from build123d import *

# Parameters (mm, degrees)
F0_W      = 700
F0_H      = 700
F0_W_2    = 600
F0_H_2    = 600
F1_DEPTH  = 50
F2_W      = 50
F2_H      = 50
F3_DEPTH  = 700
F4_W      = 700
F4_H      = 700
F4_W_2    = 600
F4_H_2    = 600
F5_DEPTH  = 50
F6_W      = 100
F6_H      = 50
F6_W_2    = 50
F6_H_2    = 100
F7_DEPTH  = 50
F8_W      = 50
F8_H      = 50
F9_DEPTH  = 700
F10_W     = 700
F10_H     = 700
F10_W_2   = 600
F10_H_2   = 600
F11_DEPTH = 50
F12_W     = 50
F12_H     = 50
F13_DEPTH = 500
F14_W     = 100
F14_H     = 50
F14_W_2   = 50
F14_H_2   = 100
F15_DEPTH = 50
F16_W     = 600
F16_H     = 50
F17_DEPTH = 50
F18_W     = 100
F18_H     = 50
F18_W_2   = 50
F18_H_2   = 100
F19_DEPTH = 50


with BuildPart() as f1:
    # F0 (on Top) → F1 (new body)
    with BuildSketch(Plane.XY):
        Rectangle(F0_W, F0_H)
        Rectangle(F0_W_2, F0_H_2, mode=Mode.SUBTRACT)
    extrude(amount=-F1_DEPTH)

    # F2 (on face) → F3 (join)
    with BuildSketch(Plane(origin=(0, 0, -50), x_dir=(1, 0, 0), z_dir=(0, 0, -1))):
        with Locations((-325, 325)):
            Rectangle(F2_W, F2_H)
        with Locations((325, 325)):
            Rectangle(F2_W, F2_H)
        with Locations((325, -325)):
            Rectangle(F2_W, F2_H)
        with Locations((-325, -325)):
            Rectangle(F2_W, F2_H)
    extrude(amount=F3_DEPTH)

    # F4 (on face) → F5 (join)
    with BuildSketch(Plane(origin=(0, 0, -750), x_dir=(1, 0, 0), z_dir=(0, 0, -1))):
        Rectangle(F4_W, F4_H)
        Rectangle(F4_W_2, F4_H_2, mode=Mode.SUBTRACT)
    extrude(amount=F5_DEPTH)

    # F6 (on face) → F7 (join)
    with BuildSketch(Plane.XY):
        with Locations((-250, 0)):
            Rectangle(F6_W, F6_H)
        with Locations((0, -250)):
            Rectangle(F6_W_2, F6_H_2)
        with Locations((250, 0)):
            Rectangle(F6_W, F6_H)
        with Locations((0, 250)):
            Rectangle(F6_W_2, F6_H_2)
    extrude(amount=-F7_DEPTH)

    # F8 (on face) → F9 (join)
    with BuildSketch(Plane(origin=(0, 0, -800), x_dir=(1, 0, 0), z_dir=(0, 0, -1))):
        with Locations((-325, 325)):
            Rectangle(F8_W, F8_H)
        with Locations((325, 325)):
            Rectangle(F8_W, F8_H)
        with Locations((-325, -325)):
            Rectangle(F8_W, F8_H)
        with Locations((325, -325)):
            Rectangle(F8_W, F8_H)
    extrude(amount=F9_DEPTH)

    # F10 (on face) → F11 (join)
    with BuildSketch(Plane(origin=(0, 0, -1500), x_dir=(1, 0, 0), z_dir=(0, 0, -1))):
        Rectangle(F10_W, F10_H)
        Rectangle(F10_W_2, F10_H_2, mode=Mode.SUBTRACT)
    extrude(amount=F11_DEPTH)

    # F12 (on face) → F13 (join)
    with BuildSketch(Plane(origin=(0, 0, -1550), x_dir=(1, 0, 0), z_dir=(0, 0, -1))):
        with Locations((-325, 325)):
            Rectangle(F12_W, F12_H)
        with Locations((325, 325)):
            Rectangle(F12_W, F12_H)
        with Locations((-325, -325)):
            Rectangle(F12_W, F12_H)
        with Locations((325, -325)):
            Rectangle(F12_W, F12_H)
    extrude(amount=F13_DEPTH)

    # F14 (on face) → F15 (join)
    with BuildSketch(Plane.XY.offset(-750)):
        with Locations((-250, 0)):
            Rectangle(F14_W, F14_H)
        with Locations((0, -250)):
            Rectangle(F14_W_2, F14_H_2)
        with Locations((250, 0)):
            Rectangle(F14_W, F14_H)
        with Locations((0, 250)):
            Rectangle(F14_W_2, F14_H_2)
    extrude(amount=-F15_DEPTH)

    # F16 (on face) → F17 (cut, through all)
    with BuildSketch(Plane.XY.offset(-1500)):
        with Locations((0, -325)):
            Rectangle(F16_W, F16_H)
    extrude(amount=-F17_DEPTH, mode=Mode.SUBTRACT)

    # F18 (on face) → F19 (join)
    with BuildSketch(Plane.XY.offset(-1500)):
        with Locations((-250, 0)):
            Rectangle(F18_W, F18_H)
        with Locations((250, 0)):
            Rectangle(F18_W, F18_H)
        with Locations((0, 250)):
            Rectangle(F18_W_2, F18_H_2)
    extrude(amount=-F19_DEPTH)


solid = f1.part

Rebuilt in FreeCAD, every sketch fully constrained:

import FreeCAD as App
import Part
import Sketcher

doc = App.newDocument("Part")
params = doc.addObject("Spreadsheet::Sheet", "Params")
for row, (alias, value) in enumerate([
    ("sketch1_width", "700 mm"),
    ("sketch1_width2", "600 mm"),
    ("pad1_length", "50 mm"),
    ("sketch2_width", "50 mm"),
    ("pad2_length", "700 mm"),
    ("sketch3_width", "700 mm"),
    ("sketch3_width2", "600 mm"),
    ("pad3_length", "50 mm"),
    ("sketch4_width", "100 mm"),
    ("sketch4_width2", "50 mm"),
    ("pad4_length", "50 mm"),
    ("sketch5_width", "50 mm"),
    ("pad5_length", "700 mm"),
    ("sketch6_width", "700 mm"),
    ("sketch6_width2", "600 mm"),
    ("pad6_length", "50 mm"),
    ("sketch7_width", "50 mm"),
    ("pad7_length", "500 mm"),
    ("sketch8_width", "100 mm"),
    ("sketch8_width2", "50 mm"),
    ("pad8_length", "50 mm"),
    ("sketch9_width", "600 mm"),
    ("sketch9_height", "50 mm"),
    ("sketch10_width", "100 mm"),
    ("sketch10_width2", "50 mm"),
    ("pad9_length", "50 mm"),
], start=1):
    params.set(f"A{row}", alias)
    params.set(f"B{row}", "=" + value)
    params.setAlias(f"B{row}", alias)

body = doc.addObject("PartDesign::Body", "Body")

# Sketch on XY plane
sketch1 = body.newObject("Sketcher::SketchObject", "Sketch")
sketch1.AttachmentSupport = (doc.getObject("XY_Plane"), [""])
sketch1.MapMode = "FlatFace"
sketch1.addGeometry(Part.LineSegment(App.Vector(-350, 350, 0), App.Vector(-350, -350, 0)), False)
sketch1.addGeometry(Part.LineSegment(App.Vector(-350, -350, 0), App.Vector(350, -350, 0)), False)
sketch1.addGeometry(Part.LineSegment(App.Vector(350, -350, 0), App.Vector(350, 350, 0)), False)
sketch1.addGeometry(Part.LineSegment(App.Vector(350, 350, 0), App.Vector(-350, 350, 0)), False)
sketch1.addGeometry(Part.LineSegment(App.Vector(300, -300, 0), App.Vector(-300, -300, 0)), False)
sketch1.addGeometry(Part.LineSegment(App.Vector(-300, -300, 0), App.Vector(-300, 300, 0)), False)
sketch1.addGeometry(Part.LineSegment(App.Vector(-300, 300, 0), App.Vector(300, 300, 0)), False)
sketch1.addGeometry(Part.LineSegment(App.Vector(300, 300, 0), App.Vector(300, -300, 0)), False)
sketch1.addConstraint(Sketcher.Constraint("Coincident", 0, 2, 1, 1))
sketch1.addConstraint(Sketcher.Constraint("Coincident", 1, 2, 2, 1))
sketch1.addConstraint(Sketcher.Constraint("Coincident", 2, 2, 3, 1))
sketch1.addConstraint(Sketcher.Constraint("Coincident", 3, 2, 0, 1))
sketch1.addConstraint(Sketcher.Constraint("Coincident", 4, 2, 5, 1))
sketch1.addConstraint(Sketcher.Constraint("Coincident", 5, 2, 6, 1))
sketch1.addConstraint(Sketcher.Constraint("Coincident", 6, 2, 7, 1))
sketch1.addConstraint(Sketcher.Constraint("Coincident", 7, 2, 4, 1))
sketch1.addConstraint(Sketcher.Constraint("Vertical", 0))
sketch1.addConstraint(Sketcher.Constraint("Horizontal", 1))
sketch1.addConstraint(Sketcher.Constraint("Vertical", 2))
sketch1.addConstraint(Sketcher.Constraint("Horizontal", 3))
sketch1.addConstraint(Sketcher.Constraint("Horizontal", 4))
sketch1.addConstraint(Sketcher.Constraint("Vertical", 5))
sketch1.addConstraint(Sketcher.Constraint("Horizontal", 6))
sketch1.addConstraint(Sketcher.Constraint("Vertical", 7))
sketch1.addConstraint(Sketcher.Constraint("Symmetric", 0, 2, 2, 2, -1, 1))
sketch1.addConstraint(Sketcher.Constraint("Symmetric", 4, 2, 6, 2, -1, 1))
sketch1.addConstraint(Sketcher.Constraint("Equal", 3, 0))
sketch1.addConstraint(Sketcher.Constraint("Equal", 6, 5))
sketch1.addConstraint(Sketcher.Constraint("DistanceX", 1, 1, 1, 2, 700.0))
sketch1.addConstraint(Sketcher.Constraint("DistanceX", 4, 2, 4, 1, 600.0))
sketch1.setExpression("Constraints[20]", "Params.sketch1_width")
sketch1.setExpression("Constraints[21]", "Params.sketch1_width2")
pad1 = body.newObject("PartDesign::Pad", "Pad")
pad1.Profile = sketch1
pad1.setExpression("Length", "Params.pad1_length")
pad1.Reversed = True

# Sketch on XY plane
sketch2 = body.newObject("Sketcher::SketchObject", "Sketch001")
sketch2.AttachmentSupport = (doc.getObject("XY_Plane"), [""])
sketch2.MapMode = "FlatFace"
sketch2.AttachmentOffset = App.Placement(App.Vector(0, 0, -50), App.Rotation())
sketch2.addGeometry(Part.LineSegment(App.Vector(-350, -350, 0), App.Vector(-350, -300, 0)), False)
sketch2.addGeometry(Part.LineSegment(App.Vector(-350, -300, 0), App.Vector(-300, -300, 0)), False)
sketch2.addGeometry(Part.LineSegment(App.Vector(-300, -300, 0), App.Vector(-300, -350, 0)), False)
sketch2.addGeometry(Part.LineSegment(App.Vector(-300, -350, 0), App.Vector(-350, -350, 0)), False)
sketch2.addGeometry(Part.LineSegment(App.Vector(300, -350, 0), App.Vector(300, -300, 0)), False)
sketch2.addGeometry(Part.LineSegment(App.Vector(300, -300, 0), App.Vector(350, -300, 0)), False)
sketch2.addGeometry(Part.LineSegment(App.Vector(350, -300, 0), App.Vector(350, -350, 0)), False)
sketch2.addGeometry(Part.LineSegment(App.Vector(350, -350, 0), App.Vector(300, -350, 0)), False)
sketch2.addGeometry(Part.LineSegment(App.Vector(300, 300, 0), App.Vector(300, 350, 0)), False)
sketch2.addGeometry(Part.LineSegment(App.Vector(300, 350, 0), App.Vector(350, 350, 0)), False)
sketch2.addGeometry(Part.LineSegment(App.Vector(350, 350, 0), App.Vector(350, 300, 0)), False)
sketch2.addGeometry(Part.LineSegment(App.Vector(350, 300, 0), App.Vector(300, 300, 0)), False)
sketch2.addGeometry(Part.LineSegment(App.Vector(-350, 300, 0), App.Vector(-350, 350, 0)), False)
sketch2.addGeometry(Part.LineSegment(App.Vector(-350, 350, 0), App.Vector(-300, 350, 0)), False)
sketch2.addGeometry(Part.LineSegment(App.Vector(-300, 350, 0), App.Vector(-300, 300, 0)), False)
sketch2.addGeometry(Part.LineSegment(App.Vector(-300, 300, 0), App.Vector(-350, 300, 0)), False)
sketch2.addConstraint(Sketcher.Constraint("Coincident", 0, 2, 1, 1))
sketch2.addConstraint(Sketcher.Constraint("Coincident", 1, 2, 2, 1))
sketch2.addConstraint(Sketcher.Constraint("Coincident", 2, 2, 3, 1))
sketch2.addConstraint(Sketcher.Constraint("Coincident", 3, 2, 0, 1))
sketch2.addConstraint(Sketcher.Constraint("Coincident", 4, 2, 5, 1))
sketch2.addConstraint(Sketcher.Constraint("Coincident", 5, 2, 6, 1))
sketch2.addConstraint(Sketcher.Constraint("Coincident", 6, 2, 7, 1))
sketch2.addConstraint(Sketcher.Constraint("Coincident", 7, 2, 4, 1))
sketch2.addConstraint(Sketcher.Constraint("Coincident", 8, 2, 9, 1))
sketch2.addConstraint(Sketcher.Constraint("Coincident", 9, 2, 10, 1))
sketch2.addConstraint(Sketcher.Constraint("Coincident", 10, 2, 11, 1))
sketch2.addConstraint(Sketcher.Constraint("Coincident", 11, 2, 8, 1))
sketch2.addConstraint(Sketcher.Constraint("Coincident", 12, 2, 13, 1))
sketch2.addConstraint(Sketcher.Constraint("Coincident", 13, 2, 14, 1))
sketch2.addConstraint(Sketcher.Constraint("Coincident", 14, 2, 15, 1))
sketch2.addConstraint(Sketcher.Constraint("Coincident", 15, 2, 12, 1))
sketch2.addConstraint(Sketcher.Constraint("Vertical", 0))
sketch2.addConstraint(Sketcher.Constraint("Horizontal", 1))
sketch2.addConstraint(Sketcher.Constraint("Vertical", 2))
sketch2.addConstraint(Sketcher.Constraint("Horizontal", 3))
sketch2.addConstraint(Sketcher.Constraint("Vertical", 4))
sketch2.addConstraint(Sketcher.Constraint("Horizontal", 5))
sketch2.addConstraint(Sketcher.Constraint("Vertical", 6))
sketch2.addConstraint(Sketcher.Constraint("Horizontal", 7))
sketch2.addConstraint(Sketcher.Constraint("Vertical", 8))
sketch2.addConstraint(Sketcher.Constraint("Horizontal", 9))
sketch2.addConstraint(Sketcher.Constraint("Vertical", 10))
sketch2.addConstraint(Sketcher.Constraint("Horizontal", 11))
sketch2.addConstraint(Sketcher.Constraint("Vertical", 12))
sketch2.addConstraint(Sketcher.Constraint("Horizontal", 13))
sketch2.addConstraint(Sketcher.Constraint("Vertical", 14))
sketch2.addConstraint(Sketcher.Constraint("Horizontal", 15))
sketch2.addConstraint(Sketcher.Constraint("Symmetric", 2, 2, 8, 2, -1, 1))
sketch2.addConstraint(Sketcher.Constraint("Symmetric", 0, 2, 10, 2, -1, 1))
sketch2.addConstraint(Sketcher.Constraint("Symmetric", 6, 2, 12, 2, -1, 1))
sketch2.addConstraint(Sketcher.Constraint("Symmetric", 4, 2, 14, 2, -1, 1))
sketch2.addConstraint(Sketcher.Constraint("Symmetric", 1, 2, 4, 2, -2))
sketch2.addConstraint(Sketcher.Constraint("Symmetric", 3, 2, 6, 2, -2))
sketch2.addConstraint(Sketcher.Constraint("Equal", 15, 0))
sketch2.addConstraint(Sketcher.Constraint("DistanceX", 1, 1, 1, 2, 50.0))
sketch2.addConstraint(Sketcher.Constraint("DistanceX", 0, 2, -1, 1, 350.0))
sketch2.addConstraint(Sketcher.Constraint("DistanceY", 0, 2, -1, 1, 300.0))
sketch2.setExpression("Constraints[39]", "Params.sketch2_width")
pad2 = body.newObject("PartDesign::Pad", "Pad001")
pad2.Profile = sketch2
pad2.setExpression("Length", "Params.pad2_length")
pad2.Reversed = True

# Sketch on XY plane
sketch3 = body.newObject("Sketcher::SketchObject", "Sketch002")
sketch3.AttachmentSupport = (doc.getObject("XY_Plane"), [""])
sketch3.MapMode = "FlatFace"
sketch3.AttachmentOffset = App.Placement(App.Vector(0, 0, -750), App.Rotation())
sketch3.addGeometry(Part.LineSegment(App.Vector(-350, -350, 0), App.Vector(-350, 350, 0)), False)
sketch3.addGeometry(Part.LineSegment(App.Vector(-350, 350, 0), App.Vector(350, 350, 0)), False)
sketch3.addGeometry(Part.LineSegment(App.Vector(350, 350, 0), App.Vector(350, -350, 0)), False)
sketch3.addGeometry(Part.LineSegment(App.Vector(350, -350, 0), App.Vector(-350, -350, 0)), False)
sketch3.addGeometry(Part.LineSegment(App.Vector(300, 300, 0), App.Vector(-300, 300, 0)), False)
sketch3.addGeometry(Part.LineSegment(App.Vector(-300, 300, 0), App.Vector(-300, -300, 0)), False)
sketch3.addGeometry(Part.LineSegment(App.Vector(-300, -300, 0), App.Vector(300, -300, 0)), False)
sketch3.addGeometry(Part.LineSegment(App.Vector(300, -300, 0), App.Vector(300, 300, 0)), False)
sketch3.addConstraint(Sketcher.Constraint("Coincident", 0, 2, 1, 1))
sketch3.addConstraint(Sketcher.Constraint("Coincident", 1, 2, 2, 1))
sketch3.addConstraint(Sketcher.Constraint("Coincident", 2, 2, 3, 1))
sketch3.addConstraint(Sketcher.Constraint("Coincident", 3, 2, 0, 1))
sketch3.addConstraint(Sketcher.Constraint("Coincident", 4, 2, 5, 1))
sketch3.addConstraint(Sketcher.Constraint("Coincident", 5, 2, 6, 1))
sketch3.addConstraint(Sketcher.Constraint("Coincident", 6, 2, 7, 1))
sketch3.addConstraint(Sketcher.Constraint("Coincident", 7, 2, 4, 1))
sketch3.addConstraint(Sketcher.Constraint("Vertical", 0))
sketch3.addConstraint(Sketcher.Constraint("Horizontal", 1))
sketch3.addConstraint(Sketcher.Constraint("Vertical", 2))
sketch3.addConstraint(Sketcher.Constraint("Horizontal", 3))
sketch3.addConstraint(Sketcher.Constraint("Horizontal", 4))
sketch3.addConstraint(Sketcher.Constraint("Vertical", 5))
sketch3.addConstraint(Sketcher.Constraint("Horizontal", 6))
sketch3.addConstraint(Sketcher.Constraint("Vertical", 7))
sketch3.addConstraint(Sketcher.Constraint("Symmetric", 0, 2, 2, 2, -1, 1))
sketch3.addConstraint(Sketcher.Constraint("Symmetric", 4, 2, 6, 2, -1, 1))
sketch3.addConstraint(Sketcher.Constraint("Equal", 3, 0))
sketch3.addConstraint(Sketcher.Constraint("Equal", 6, 5))
sketch3.addConstraint(Sketcher.Constraint("DistanceX", 1, 1, 1, 2, 700.0))
sketch3.addConstraint(Sketcher.Constraint("DistanceX", 4, 2, 4, 1, 600.0))
sketch3.setExpression("Constraints[20]", "Params.sketch3_width")
sketch3.setExpression("Constraints[21]", "Params.sketch3_width2")
pad3 = body.newObject("PartDesign::Pad", "Pad002")
pad3.Profile = sketch3
pad3.setExpression("Length", "Params.pad3_length")
pad3.Reversed = True

# Sketch on XY plane
sketch4 = body.newObject("Sketcher::SketchObject", "Sketch003")
sketch4.AttachmentSupport = (doc.getObject("XY_Plane"), [""])
sketch4.MapMode = "FlatFace"
sketch4.addGeometry(Part.LineSegment(App.Vector(-300, 25, 0), App.Vector(-300, -25, 0)), False)
sketch4.addGeometry(Part.LineSegment(App.Vector(-300, -25, 0), App.Vector(-200, -25, 0)), False)
sketch4.addGeometry(Part.LineSegment(App.Vector(-200, -25, 0), App.Vector(-200, 25, 0)), False)
sketch4.addGeometry(Part.LineSegment(App.Vector(-200, 25, 0), App.Vector(-300, 25, 0)), False)
sketch4.addGeometry(Part.LineSegment(App.Vector(-25, -200, 0), App.Vector(-25, -300, 0)), False)
sketch4.addGeometry(Part.LineSegment(App.Vector(-25, -300, 0), App.Vector(25, -300, 0)), False)
sketch4.addGeometry(Part.LineSegment(App.Vector(25, -300, 0), App.Vector(25, -200, 0)), False)
sketch4.addGeometry(Part.LineSegment(App.Vector(25, -200, 0), App.Vector(-25, -200, 0)), False)
sketch4.addGeometry(Part.LineSegment(App.Vector(200, 25, 0), App.Vector(200, -25, 0)), False)
sketch4.addGeometry(Part.LineSegment(App.Vector(200, -25, 0), App.Vector(300, -25, 0)), False)
sketch4.addGeometry(Part.LineSegment(App.Vector(300, -25, 0), App.Vector(300, 25, 0)), False)
sketch4.addGeometry(Part.LineSegment(App.Vector(300, 25, 0), App.Vector(200, 25, 0)), False)
sketch4.addGeometry(Part.LineSegment(App.Vector(-25, 300, 0), App.Vector(-25, 200, 0)), False)
sketch4.addGeometry(Part.LineSegment(App.Vector(-25, 200, 0), App.Vector(25, 200, 0)), False)
sketch4.addGeometry(Part.LineSegment(App.Vector(25, 200, 0), App.Vector(25, 300, 0)), False)
sketch4.addGeometry(Part.LineSegment(App.Vector(25, 300, 0), App.Vector(-25, 300, 0)), False)
sketch4.addConstraint(Sketcher.Constraint("Coincident", 0, 2, 1, 1))
sketch4.addConstraint(Sketcher.Constraint("Coincident", 1, 2, 2, 1))
sketch4.addConstraint(Sketcher.Constraint("Coincident", 2, 2, 3, 1))
sketch4.addConstraint(Sketcher.Constraint("Coincident", 3, 2, 0, 1))
sketch4.addConstraint(Sketcher.Constraint("Coincident", 4, 2, 5, 1))
sketch4.addConstraint(Sketcher.Constraint("Coincident", 5, 2, 6, 1))
sketch4.addConstraint(Sketcher.Constraint("Coincident", 6, 2, 7, 1))
sketch4.addConstraint(Sketcher.Constraint("Coincident", 7, 2, 4, 1))
sketch4.addConstraint(Sketcher.Constraint("Coincident", 8, 2, 9, 1))
sketch4.addConstraint(Sketcher.Constraint("Coincident", 9, 2, 10, 1))
sketch4.addConstraint(Sketcher.Constraint("Coincident", 10, 2, 11, 1))
sketch4.addConstraint(Sketcher.Constraint("Coincident", 11, 2, 8, 1))
sketch4.addConstraint(Sketcher.Constraint("Coincident", 12, 2, 13, 1))
sketch4.addConstraint(Sketcher.Constraint("Coincident", 13, 2, 14, 1))
sketch4.addConstraint(Sketcher.Constraint("Coincident", 14, 2, 15, 1))
sketch4.addConstraint(Sketcher.Constraint("Coincident", 15, 2, 12, 1))
sketch4.addConstraint(Sketcher.Constraint("Vertical", 0))
sketch4.addConstraint(Sketcher.Constraint("Horizontal", 1))
sketch4.addConstraint(Sketcher.Constraint("Vertical", 2))
sketch4.addConstraint(Sketcher.Constraint("Horizontal", 3))
sketch4.addConstraint(Sketcher.Constraint("Vertical", 4))
sketch4.addConstraint(Sketcher.Constraint("Horizontal", 5))
sketch4.addConstraint(Sketcher.Constraint("Vertical", 6))
sketch4.addConstraint(Sketcher.Constraint("Horizontal", 7))
sketch4.addConstraint(Sketcher.Constraint("Vertical", 8))
sketch4.addConstraint(Sketcher.Constraint("Horizontal", 9))
sketch4.addConstraint(Sketcher.Constraint("Vertical", 10))
sketch4.addConstraint(Sketcher.Constraint("Horizontal", 11))
sketch4.addConstraint(Sketcher.Constraint("Vertical", 12))
sketch4.addConstraint(Sketcher.Constraint("Horizontal", 13))
sketch4.addConstraint(Sketcher.Constraint("Vertical", 14))
sketch4.addConstraint(Sketcher.Constraint("Horizontal", 15))
sketch4.addConstraint(Sketcher.Constraint("Symmetric", 2, 2, 8, 2, -1, 1))
sketch4.addConstraint(Sketcher.Constraint("Symmetric", 0, 2, 10, 2, -1, 1))
sketch4.addConstraint(Sketcher.Constraint("Symmetric", 6, 2, 12, 2, -1, 1))
sketch4.addConstraint(Sketcher.Constraint("Symmetric", 4, 2, 14, 2, -1, 1))
sketch4.addConstraint(Sketcher.Constraint("Horizontal", 1, 2, 8, 2))
sketch4.addConstraint(Sketcher.Constraint("Vertical", 7, 2, 12, 2))
sketch4.addConstraint(Sketcher.Constraint("Equal", 15, 0))
sketch4.addConstraint(Sketcher.Constraint("Equal", 11, 4))
sketch4.addConstraint(Sketcher.Constraint("DistanceX", 1, 1, 1, 2, 100.0))
sketch4.addConstraint(Sketcher.Constraint("DistanceX", 5, 1, 5, 2, 50.0))
sketch4.addConstraint(Sketcher.Constraint("DistanceX", 0, 2, -1, 1, 300.0))
sketch4.addConstraint(Sketcher.Constraint("DistanceY", 4, 2, -1, 1, 300.0))
sketch4.setExpression("Constraints[40]", "Params.sketch4_width")
sketch4.setExpression("Constraints[41]", "Params.sketch4_width2")
pad4 = body.newObject("PartDesign::Pad", "Pad003")
pad4.Profile = sketch4
pad4.setExpression("Length", "Params.pad4_length")
pad4.Reversed = True

# Sketch on XY plane
sketch5 = body.newObject("Sketcher::SketchObject", "Sketch004")
sketch5.AttachmentSupport = (doc.getObject("XY_Plane"), [""])
sketch5.MapMode = "FlatFace"
sketch5.AttachmentOffset = App.Placement(App.Vector(0, 0, -800), App.Rotation())
sketch5.addGeometry(Part.LineSegment(App.Vector(-350, -350, 0), App.Vector(-350, -300, 0)), False)
sketch5.addGeometry(Part.LineSegment(App.Vector(-350, -300, 0), App.Vector(-300, -300, 0)), False)
sketch5.addGeometry(Part.LineSegment(App.Vector(-300, -300, 0), App.Vector(-300, -350, 0)), False)
sketch5.addGeometry(Part.LineSegment(App.Vector(-300, -350, 0), App.Vector(-350, -350, 0)), False)
sketch5.addGeometry(Part.LineSegment(App.Vector(300, -350, 0), App.Vector(300, -300, 0)), False)
sketch5.addGeometry(Part.LineSegment(App.Vector(300, -300, 0), App.Vector(350, -300, 0)), False)
sketch5.addGeometry(Part.LineSegment(App.Vector(350, -300, 0), App.Vector(350, -350, 0)), False)
sketch5.addGeometry(Part.LineSegment(App.Vector(350, -350, 0), App.Vector(300, -350, 0)), False)
sketch5.addGeometry(Part.LineSegment(App.Vector(-350, 300, 0), App.Vector(-350, 350, 0)), False)
sketch5.addGeometry(Part.LineSegment(App.Vector(-350, 350, 0), App.Vector(-300, 350, 0)), False)
sketch5.addGeometry(Part.LineSegment(App.Vector(-300, 350, 0), App.Vector(-300, 300, 0)), False)
sketch5.addGeometry(Part.LineSegment(App.Vector(-300, 300, 0), App.Vector(-350, 300, 0)), False)
sketch5.addGeometry(Part.LineSegment(App.Vector(300, 300, 0), App.Vector(300, 350, 0)), False)
sketch5.addGeometry(Part.LineSegment(App.Vector(300, 350, 0), App.Vector(350, 350, 0)), False)
sketch5.addGeometry(Part.LineSegment(App.Vector(350, 350, 0), App.Vector(350, 300, 0)), False)
sketch5.addGeometry(Part.LineSegment(App.Vector(350, 300, 0), App.Vector(300, 300, 0)), False)
sketch5.addConstraint(Sketcher.Constraint("Coincident", 0, 2, 1, 1))
sketch5.addConstraint(Sketcher.Constraint("Coincident", 1, 2, 2, 1))
sketch5.addConstraint(Sketcher.Constraint("Coincident", 2, 2, 3, 1))
sketch5.addConstraint(Sketcher.Constraint("Coincident", 3, 2, 0, 1))
sketch5.addConstraint(Sketcher.Constraint("Coincident", 4, 2, 5, 1))
sketch5.addConstraint(Sketcher.Constraint("Coincident", 5, 2, 6, 1))
sketch5.addConstraint(Sketcher.Constraint("Coincident", 6, 2, 7, 1))
sketch5.addConstraint(Sketcher.Constraint("Coincident", 7, 2, 4, 1))
sketch5.addConstraint(Sketcher.Constraint("Coincident", 8, 2, 9, 1))
sketch5.addConstraint(Sketcher.Constraint("Coincident", 9, 2, 10, 1))
sketch5.addConstraint(Sketcher.Constraint("Coincident", 10, 2, 11, 1))
sketch5.addConstraint(Sketcher.Constraint("Coincident", 11, 2, 8, 1))
sketch5.addConstraint(Sketcher.Constraint("Coincident", 12, 2, 13, 1))
sketch5.addConstraint(Sketcher.Constraint("Coincident", 13, 2, 14, 1))
sketch5.addConstraint(Sketcher.Constraint("Coincident", 14, 2, 15, 1))
sketch5.addConstraint(Sketcher.Constraint("Coincident", 15, 2, 12, 1))
sketch5.addConstraint(Sketcher.Constraint("Vertical", 0))
sketch5.addConstraint(Sketcher.Constraint("Horizontal", 1))
sketch5.addConstraint(Sketcher.Constraint("Vertical", 2))
sketch5.addConstraint(Sketcher.Constraint("Horizontal", 3))
sketch5.addConstraint(Sketcher.Constraint("Vertical", 4))
sketch5.addConstraint(Sketcher.Constraint("Horizontal", 5))
sketch5.addConstraint(Sketcher.Constraint("Vertical", 6))
sketch5.addConstraint(Sketcher.Constraint("Horizontal", 7))
sketch5.addConstraint(Sketcher.Constraint("Vertical", 8))
sketch5.addConstraint(Sketcher.Constraint("Horizontal", 9))
sketch5.addConstraint(Sketcher.Constraint("Vertical", 10))
sketch5.addConstraint(Sketcher.Constraint("Horizontal", 11))
sketch5.addConstraint(Sketcher.Constraint("Vertical", 12))
sketch5.addConstraint(Sketcher.Constraint("Horizontal", 13))
sketch5.addConstraint(Sketcher.Constraint("Vertical", 14))
sketch5.addConstraint(Sketcher.Constraint("Horizontal", 15))
sketch5.addConstraint(Sketcher.Constraint("Symmetric", 6, 2, 8, 2, -1, 1))
sketch5.addConstraint(Sketcher.Constraint("Symmetric", 4, 2, 10, 2, -1, 1))
sketch5.addConstraint(Sketcher.Constraint("Symmetric", 2, 2, 12, 2, -1, 1))
sketch5.addConstraint(Sketcher.Constraint("Symmetric", 0, 2, 14, 2, -1, 1))
sketch5.addConstraint(Sketcher.Constraint("Symmetric", 1, 2, 4, 2, -2))
sketch5.addConstraint(Sketcher.Constraint("Symmetric", 3, 2, 6, 2, -2))
sketch5.addConstraint(Sketcher.Constraint("Equal", 15, 0))
sketch5.addConstraint(Sketcher.Constraint("DistanceX", 1, 1, 1, 2, 50.0))
sketch5.addConstraint(Sketcher.Constraint("DistanceX", 0, 2, -1, 1, 350.0))
sketch5.addConstraint(Sketcher.Constraint("DistanceY", 0, 2, -1, 1, 300.0))
sketch5.setExpression("Constraints[39]", "Params.sketch5_width")
pad5 = body.newObject("PartDesign::Pad", "Pad004")
pad5.Profile = sketch5
pad5.setExpression("Length", "Params.pad5_length")
pad5.Reversed = True

# Sketch on XY plane
sketch6 = body.newObject("Sketcher::SketchObject", "Sketch005")
sketch6.AttachmentSupport = (doc.getObject("XY_Plane"), [""])
sketch6.MapMode = "FlatFace"
sketch6.AttachmentOffset = App.Placement(App.Vector(0, 0, -1500), App.Rotation())
sketch6.addGeometry(Part.LineSegment(App.Vector(-350, -350, 0), App.Vector(-350, 350, 0)), False)
sketch6.addGeometry(Part.LineSegment(App.Vector(-350, 350, 0), App.Vector(350, 350, 0)), False)
sketch6.addGeometry(Part.LineSegment(App.Vector(350, 350, 0), App.Vector(350, -350, 0)), False)
sketch6.addGeometry(Part.LineSegment(App.Vector(350, -350, 0), App.Vector(-350, -350, 0)), False)
sketch6.addGeometry(Part.LineSegment(App.Vector(300, 300, 0), App.Vector(-300, 300, 0)), False)
sketch6.addGeometry(Part.LineSegment(App.Vector(-300, 300, 0), App.Vector(-300, -300, 0)), False)
sketch6.addGeometry(Part.LineSegment(App.Vector(-300, -300, 0), App.Vector(300, -300, 0)), False)
sketch6.addGeometry(Part.LineSegment(App.Vector(300, -300, 0), App.Vector(300, 300, 0)), False)
sketch6.addConstraint(Sketcher.Constraint("Coincident", 0, 2, 1, 1))
sketch6.addConstraint(Sketcher.Constraint("Coincident", 1, 2, 2, 1))
sketch6.addConstraint(Sketcher.Constraint("Coincident", 2, 2, 3, 1))
sketch6.addConstraint(Sketcher.Constraint("Coincident", 3, 2, 0, 1))
sketch6.addConstraint(Sketcher.Constraint("Coincident", 4, 2, 5, 1))
sketch6.addConstraint(Sketcher.Constraint("Coincident", 5, 2, 6, 1))
sketch6.addConstraint(Sketcher.Constraint("Coincident", 6, 2, 7, 1))
sketch6.addConstraint(Sketcher.Constraint("Coincident", 7, 2, 4, 1))
sketch6.addConstraint(Sketcher.Constraint("Vertical", 0))
sketch6.addConstraint(Sketcher.Constraint("Horizontal", 1))
sketch6.addConstraint(Sketcher.Constraint("Vertical", 2))
sketch6.addConstraint(Sketcher.Constraint("Horizontal", 3))
sketch6.addConstraint(Sketcher.Constraint("Horizontal", 4))
sketch6.addConstraint(Sketcher.Constraint("Vertical", 5))
sketch6.addConstraint(Sketcher.Constraint("Horizontal", 6))
sketch6.addConstraint(Sketcher.Constraint("Vertical", 7))
sketch6.addConstraint(Sketcher.Constraint("Symmetric", 0, 2, 2, 2, -1, 1))
sketch6.addConstraint(Sketcher.Constraint("Symmetric", 4, 2, 6, 2, -1, 1))
sketch6.addConstraint(Sketcher.Constraint("Equal", 3, 0))
sketch6.addConstraint(Sketcher.Constraint("Equal", 6, 5))
sketch6.addConstraint(Sketcher.Constraint("DistanceX", 1, 1, 1, 2, 700.0))
sketch6.addConstraint(Sketcher.Constraint("DistanceX", 4, 2, 4, 1, 600.0))
sketch6.setExpression("Constraints[20]", "Params.sketch6_width")
sketch6.setExpression("Constraints[21]", "Params.sketch6_width2")
pad6 = body.newObject("PartDesign::Pad", "Pad005")
pad6.Profile = sketch6
pad6.setExpression("Length", "Params.pad6_length")
pad6.Reversed = True

# Sketch on XY plane
sketch7 = body.newObject("Sketcher::SketchObject", "Sketch006")
sketch7.AttachmentSupport = (doc.getObject("XY_Plane"), [""])
sketch7.MapMode = "FlatFace"
sketch7.AttachmentOffset = App.Placement(App.Vector(0, 0, -1550), App.Rotation())
sketch7.addGeometry(Part.LineSegment(App.Vector(-350, -350, 0), App.Vector(-350, -300, 0)), False)
sketch7.addGeometry(Part.LineSegment(App.Vector(-350, -300, 0), App.Vector(-300, -300, 0)), False)
sketch7.addGeometry(Part.LineSegment(App.Vector(-300, -300, 0), App.Vector(-300, -350, 0)), False)
sketch7.addGeometry(Part.LineSegment(App.Vector(-300, -350, 0), App.Vector(-350, -350, 0)), False)
sketch7.addGeometry(Part.LineSegment(App.Vector(300, -350, 0), App.Vector(300, -300, 0)), False)
sketch7.addGeometry(Part.LineSegment(App.Vector(300, -300, 0), App.Vector(350, -300, 0)), False)
sketch7.addGeometry(Part.LineSegment(App.Vector(350, -300, 0), App.Vector(350, -350, 0)), False)
sketch7.addGeometry(Part.LineSegment(App.Vector(350, -350, 0), App.Vector(300, -350, 0)), False)
sketch7.addGeometry(Part.LineSegment(App.Vector(-350, 300, 0), App.Vector(-350, 350, 0)), False)
sketch7.addGeometry(Part.LineSegment(App.Vector(-350, 350, 0), App.Vector(-300, 350, 0)), False)
sketch7.addGeometry(Part.LineSegment(App.Vector(-300, 350, 0), App.Vector(-300, 300, 0)), False)
sketch7.addGeometry(Part.LineSegment(App.Vector(-300, 300, 0), App.Vector(-350, 300, 0)), False)
sketch7.addGeometry(Part.LineSegment(App.Vector(300, 300, 0), App.Vector(300, 350, 0)), False)
sketch7.addGeometry(Part.LineSegment(App.Vector(300, 350, 0), App.Vector(350, 350, 0)), False)
sketch7.addGeometry(Part.LineSegment(App.Vector(350, 350, 0), App.Vector(350, 300, 0)), False)
sketch7.addGeometry(Part.LineSegment(App.Vector(350, 300, 0), App.Vector(300, 300, 0)), False)
sketch7.addConstraint(Sketcher.Constraint("Coincident", 0, 2, 1, 1))
sketch7.addConstraint(Sketcher.Constraint("Coincident", 1, 2, 2, 1))
sketch7.addConstraint(Sketcher.Constraint("Coincident", 2, 2, 3, 1))
sketch7.addConstraint(Sketcher.Constraint("Coincident", 3, 2, 0, 1))
sketch7.addConstraint(Sketcher.Constraint("Coincident", 4, 2, 5, 1))
sketch7.addConstraint(Sketcher.Constraint("Coincident", 5, 2, 6, 1))
sketch7.addConstraint(Sketcher.Constraint("Coincident", 6, 2, 7, 1))
sketch7.addConstraint(Sketcher.Constraint("Coincident", 7, 2, 4, 1))
sketch7.addConstraint(Sketcher.Constraint("Coincident", 8, 2, 9, 1))
sketch7.addConstraint(Sketcher.Constraint("Coincident", 9, 2, 10, 1))
sketch7.addConstraint(Sketcher.Constraint("Coincident", 10, 2, 11, 1))
sketch7.addConstraint(Sketcher.Constraint("Coincident", 11, 2, 8, 1))
sketch7.addConstraint(Sketcher.Constraint("Coincident", 12, 2, 13, 1))
sketch7.addConstraint(Sketcher.Constraint("Coincident", 13, 2, 14, 1))
sketch7.addConstraint(Sketcher.Constraint("Coincident", 14, 2, 15, 1))
sketch7.addConstraint(Sketcher.Constraint("Coincident", 15, 2, 12, 1))
sketch7.addConstraint(Sketcher.Constraint("Vertical", 0))
sketch7.addConstraint(Sketcher.Constraint("Horizontal", 1))
sketch7.addConstraint(Sketcher.Constraint("Vertical", 2))
sketch7.addConstraint(Sketcher.Constraint("Horizontal", 3))
sketch7.addConstraint(Sketcher.Constraint("Vertical", 4))
sketch7.addConstraint(Sketcher.Constraint("Horizontal", 5))
sketch7.addConstraint(Sketcher.Constraint("Vertical", 6))
sketch7.addConstraint(Sketcher.Constraint("Horizontal", 7))
sketch7.addConstraint(Sketcher.Constraint("Vertical", 8))
sketch7.addConstraint(Sketcher.Constraint("Horizontal", 9))
sketch7.addConstraint(Sketcher.Constraint("Vertical", 10))
sketch7.addConstraint(Sketcher.Constraint("Horizontal", 11))
sketch7.addConstraint(Sketcher.Constraint("Vertical", 12))
sketch7.addConstraint(Sketcher.Constraint("Horizontal", 13))
sketch7.addConstraint(Sketcher.Constraint("Vertical", 14))
sketch7.addConstraint(Sketcher.Constraint("Horizontal", 15))
sketch7.addConstraint(Sketcher.Constraint("Symmetric", 6, 2, 8, 2, -1, 1))
sketch7.addConstraint(Sketcher.Constraint("Symmetric", 4, 2, 10, 2, -1, 1))
sketch7.addConstraint(Sketcher.Constraint("Symmetric", 2, 2, 12, 2, -1, 1))
sketch7.addConstraint(Sketcher.Constraint("Symmetric", 0, 2, 14, 2, -1, 1))
sketch7.addConstraint(Sketcher.Constraint("Symmetric", 1, 2, 4, 2, -2))
sketch7.addConstraint(Sketcher.Constraint("Symmetric", 3, 2, 6, 2, -2))
sketch7.addConstraint(Sketcher.Constraint("Equal", 15, 0))
sketch7.addConstraint(Sketcher.Constraint("DistanceX", 1, 1, 1, 2, 50.0))
sketch7.addConstraint(Sketcher.Constraint("DistanceX", 0, 2, -1, 1, 350.0))
sketch7.addConstraint(Sketcher.Constraint("DistanceY", 0, 2, -1, 1, 300.0))
sketch7.setExpression("Constraints[39]", "Params.sketch7_width")
pad7 = body.newObject("PartDesign::Pad", "Pad006")
pad7.Profile = sketch7
pad7.setExpression("Length", "Params.pad7_length")
pad7.Reversed = True

# Sketch on XY plane
sketch8 = body.newObject("Sketcher::SketchObject", "Sketch007")
sketch8.AttachmentSupport = (doc.getObject("XY_Plane"), [""])
sketch8.MapMode = "FlatFace"
sketch8.AttachmentOffset = App.Placement(App.Vector(0, 0, -750), App.Rotation())
sketch8.addGeometry(Part.LineSegment(App.Vector(-300, 25, 0), App.Vector(-300, -25, 0)), False)
sketch8.addGeometry(Part.LineSegment(App.Vector(-300, -25, 0), App.Vector(-200, -25, 0)), False)
sketch8.addGeometry(Part.LineSegment(App.Vector(-200, -25, 0), App.Vector(-200, 25, 0)), False)
sketch8.addGeometry(Part.LineSegment(App.Vector(-200, 25, 0), App.Vector(-300, 25, 0)), False)
sketch8.addGeometry(Part.LineSegment(App.Vector(-25, -200, 0), App.Vector(-25, -300, 0)), False)
sketch8.addGeometry(Part.LineSegment(App.Vector(-25, -300, 0), App.Vector(25, -300, 0)), False)
sketch8.addGeometry(Part.LineSegment(App.Vector(25, -300, 0), App.Vector(25, -200, 0)), False)
sketch8.addGeometry(Part.LineSegment(App.Vector(25, -200, 0), App.Vector(-25, -200, 0)), False)
sketch8.addGeometry(Part.LineSegment(App.Vector(200, 25, 0), App.Vector(200, -25, 0)), False)
sketch8.addGeometry(Part.LineSegment(App.Vector(200, -25, 0), App.Vector(300, -25, 0)), False)
sketch8.addGeometry(Part.LineSegment(App.Vector(300, -25, 0), App.Vector(300, 25, 0)), False)
sketch8.addGeometry(Part.LineSegment(App.Vector(300, 25, 0), App.Vector(200, 25, 0)), False)
sketch8.addGeometry(Part.LineSegment(App.Vector(-25, 300, 0), App.Vector(-25, 200, 0)), False)
sketch8.addGeometry(Part.LineSegment(App.Vector(-25, 200, 0), App.Vector(25, 200, 0)), False)
sketch8.addGeometry(Part.LineSegment(App.Vector(25, 200, 0), App.Vector(25, 300, 0)), False)
sketch8.addGeometry(Part.LineSegment(App.Vector(25, 300, 0), App.Vector(-25, 300, 0)), False)
sketch8.addConstraint(Sketcher.Constraint("Coincident", 0, 2, 1, 1))
sketch8.addConstraint(Sketcher.Constraint("Coincident", 1, 2, 2, 1))
sketch8.addConstraint(Sketcher.Constraint("Coincident", 2, 2, 3, 1))
sketch8.addConstraint(Sketcher.Constraint("Coincident", 3, 2, 0, 1))
sketch8.addConstraint(Sketcher.Constraint("Coincident", 4, 2, 5, 1))
sketch8.addConstraint(Sketcher.Constraint("Coincident", 5, 2, 6, 1))
sketch8.addConstraint(Sketcher.Constraint("Coincident", 6, 2, 7, 1))
sketch8.addConstraint(Sketcher.Constraint("Coincident", 7, 2, 4, 1))
sketch8.addConstraint(Sketcher.Constraint("Coincident", 8, 2, 9, 1))
sketch8.addConstraint(Sketcher.Constraint("Coincident", 9, 2, 10, 1))
sketch8.addConstraint(Sketcher.Constraint("Coincident", 10, 2, 11, 1))
sketch8.addConstraint(Sketcher.Constraint("Coincident", 11, 2, 8, 1))
sketch8.addConstraint(Sketcher.Constraint("Coincident", 12, 2, 13, 1))
sketch8.addConstraint(Sketcher.Constraint("Coincident", 13, 2, 14, 1))
sketch8.addConstraint(Sketcher.Constraint("Coincident", 14, 2, 15, 1))
sketch8.addConstraint(Sketcher.Constraint("Coincident", 15, 2, 12, 1))
sketch8.addConstraint(Sketcher.Constraint("Vertical", 0))
sketch8.addConstraint(Sketcher.Constraint("Horizontal", 1))
sketch8.addConstraint(Sketcher.Constraint("Vertical", 2))
sketch8.addConstraint(Sketcher.Constraint("Horizontal", 3))
sketch8.addConstraint(Sketcher.Constraint("Vertical", 4))
sketch8.addConstraint(Sketcher.Constraint("Horizontal", 5))
sketch8.addConstraint(Sketcher.Constraint("Vertical", 6))
sketch8.addConstraint(Sketcher.Constraint("Horizontal", 7))
sketch8.addConstraint(Sketcher.Constraint("Vertical", 8))
sketch8.addConstraint(Sketcher.Constraint("Horizontal", 9))
sketch8.addConstraint(Sketcher.Constraint("Vertical", 10))
sketch8.addConstraint(Sketcher.Constraint("Horizontal", 11))
sketch8.addConstraint(Sketcher.Constraint("Vertical", 12))
sketch8.addConstraint(Sketcher.Constraint("Horizontal", 13))
sketch8.addConstraint(Sketcher.Constraint("Vertical", 14))
sketch8.addConstraint(Sketcher.Constraint("Horizontal", 15))
sketch8.addConstraint(Sketcher.Constraint("Symmetric", 2, 2, 8, 2, -1, 1))
sketch8.addConstraint(Sketcher.Constraint("Symmetric", 0, 2, 10, 2, -1, 1))
sketch8.addConstraint(Sketcher.Constraint("Symmetric", 6, 2, 12, 2, -1, 1))
sketch8.addConstraint(Sketcher.Constraint("Symmetric", 4, 2, 14, 2, -1, 1))
sketch8.addConstraint(Sketcher.Constraint("Horizontal", 1, 2, 8, 2))
sketch8.addConstraint(Sketcher.Constraint("Vertical", 7, 2, 12, 2))
sketch8.addConstraint(Sketcher.Constraint("Equal", 15, 0))
sketch8.addConstraint(Sketcher.Constraint("Equal", 11, 4))
sketch8.addConstraint(Sketcher.Constraint("DistanceX", 1, 1, 1, 2, 100.0))
sketch8.addConstraint(Sketcher.Constraint("DistanceX", 5, 1, 5, 2, 50.0))
sketch8.addConstraint(Sketcher.Constraint("DistanceX", 0, 2, -1, 1, 300.0))
sketch8.addConstraint(Sketcher.Constraint("DistanceY", 4, 2, -1, 1, 300.0))
sketch8.setExpression("Constraints[40]", "Params.sketch8_width")
sketch8.setExpression("Constraints[41]", "Params.sketch8_width2")
pad8 = body.newObject("PartDesign::Pad", "Pad007")
pad8.Profile = sketch8
pad8.setExpression("Length", "Params.pad8_length")
pad8.Reversed = True

# Sketch on XY plane
sketch9 = body.newObject("Sketcher::SketchObject", "Sketch008")
sketch9.AttachmentSupport = (doc.getObject("XY_Plane"), [""])
sketch9.MapMode = "FlatFace"
sketch9.AttachmentOffset = App.Placement(App.Vector(0, 0, -1500), App.Rotation())
sketch9.addGeometry(Part.LineSegment(App.Vector(-300, -300, 0), App.Vector(-300, -350, 0)), False)
sketch9.addGeometry(Part.LineSegment(App.Vector(-300, -350, 0), App.Vector(300, -350, 0)), False)
sketch9.addGeometry(Part.LineSegment(App.Vector(300, -350, 0), App.Vector(300, -300, 0)), False)
sketch9.addGeometry(Part.LineSegment(App.Vector(300, -300, 0), App.Vector(-300, -300, 0)), False)
sketch9.addConstraint(Sketcher.Constraint("Coincident", 0, 2, 1, 1))
sketch9.addConstraint(Sketcher.Constraint("Coincident", 1, 2, 2, 1))
sketch9.addConstraint(Sketcher.Constraint("Coincident", 2, 2, 3, 1))
sketch9.addConstraint(Sketcher.Constraint("Coincident", 3, 2, 0, 1))
sketch9.addConstraint(Sketcher.Constraint("Vertical", 0))
sketch9.addConstraint(Sketcher.Constraint("Horizontal", 1))
sketch9.addConstraint(Sketcher.Constraint("Vertical", 2))
sketch9.addConstraint(Sketcher.Constraint("Horizontal", 3))
sketch9.addConstraint(Sketcher.Constraint("DistanceX", 1, 1, 1, 2, 600.0))
sketch9.addConstraint(Sketcher.Constraint("DistanceY", 0, 2, 0, 1, 50.0))
sketch9.addConstraint(Sketcher.Constraint("DistanceX", 0, 2, -1, 1, 300.0))
sketch9.addConstraint(Sketcher.Constraint("DistanceY", 0, 2, -1, 1, 350.0))
sketch9.setExpression("Constraints[8]", "Params.sketch9_width")
sketch9.setExpression("Constraints[9]", "Params.sketch9_height")
pocket1 = body.newObject("PartDesign::Pocket", "Pocket")
pocket1.Profile = sketch9
pocket1.Type = "ThroughAll"

# Sketch on XY plane
sketch10 = body.newObject("Sketcher::SketchObject", "Sketch009")
sketch10.AttachmentSupport = (doc.getObject("XY_Plane"), [""])
sketch10.MapMode = "FlatFace"
sketch10.AttachmentOffset = App.Placement(App.Vector(0, 0, -1500), App.Rotation())
sketch10.addGeometry(Part.LineSegment(App.Vector(-300, 25, 0), App.Vector(-300, -25, 0)), False)
sketch10.addGeometry(Part.LineSegment(App.Vector(-300, -25, 0), App.Vector(-200, -25, 0)), False)
sketch10.addGeometry(Part.LineSegment(App.Vector(-200, -25, 0), App.Vector(-200, 25, 0)), False)
sketch10.addGeometry(Part.LineSegment(App.Vector(-200, 25, 0), App.Vector(-300, 25, 0)), False)
sketch10.addGeometry(Part.LineSegment(App.Vector(200, 25, 0), App.Vector(200, -25, 0)), False)
sketch10.addGeometry(Part.LineSegment(App.Vector(200, -25, 0), App.Vector(300, -25, 0)), False)
sketch10.addGeometry(Part.LineSegment(App.Vector(300, -25, 0), App.Vector(300, 25, 0)), False)
sketch10.addGeometry(Part.LineSegment(App.Vector(300, 25, 0), App.Vector(200, 25, 0)), False)
sketch10.addGeometry(Part.LineSegment(App.Vector(-25, 300, 0), App.Vector(-25, 200, 0)), False)
sketch10.addGeometry(Part.LineSegment(App.Vector(-25, 200, 0), App.Vector(25, 200, 0)), False)
sketch10.addGeometry(Part.LineSegment(App.Vector(25, 200, 0), App.Vector(25, 300, 0)), False)
sketch10.addGeometry(Part.LineSegment(App.Vector(25, 300, 0), App.Vector(-25, 300, 0)), False)
sketch10.addConstraint(Sketcher.Constraint("Coincident", 0, 2, 1, 1))
sketch10.addConstraint(Sketcher.Constraint("Coincident", 1, 2, 2, 1))
sketch10.addConstraint(Sketcher.Constraint("Coincident", 2, 2, 3, 1))
sketch10.addConstraint(Sketcher.Constraint("Coincident", 3, 2, 0, 1))
sketch10.addConstraint(Sketcher.Constraint("Coincident", 4, 2, 5, 1))
sketch10.addConstraint(Sketcher.Constraint("Coincident", 5, 2, 6, 1))
sketch10.addConstraint(Sketcher.Constraint("Coincident", 6, 2, 7, 1))
sketch10.addConstraint(Sketcher.Constraint("Coincident", 7, 2, 4, 1))
sketch10.addConstraint(Sketcher.Constraint("Coincident", 8, 2, 9, 1))
sketch10.addConstraint(Sketcher.Constraint("Coincident", 9, 2, 10, 1))
sketch10.addConstraint(Sketcher.Constraint("Coincident", 10, 2, 11, 1))
sketch10.addConstraint(Sketcher.Constraint("Coincident", 11, 2, 8, 1))
sketch10.addConstraint(Sketcher.Constraint("Vertical", 0))
sketch10.addConstraint(Sketcher.Constraint("Horizontal", 1))
sketch10.addConstraint(Sketcher.Constraint("Vertical", 2))
sketch10.addConstraint(Sketcher.Constraint("Horizontal", 3))
sketch10.addConstraint(Sketcher.Constraint("Vertical", 4))
sketch10.addConstraint(Sketcher.Constraint("Horizontal", 5))
sketch10.addConstraint(Sketcher.Constraint("Vertical", 6))
sketch10.addConstraint(Sketcher.Constraint("Horizontal", 7))
sketch10.addConstraint(Sketcher.Constraint("Vertical", 8))
sketch10.addConstraint(Sketcher.Constraint("Horizontal", 9))
sketch10.addConstraint(Sketcher.Constraint("Vertical", 10))
sketch10.addConstraint(Sketcher.Constraint("Horizontal", 11))
sketch10.addConstraint(Sketcher.Constraint("Symmetric", 2, 2, 4, 2, -1, 1))
sketch10.addConstraint(Sketcher.Constraint("Symmetric", 0, 2, 6, 2, -1, 1))
sketch10.addConstraint(Sketcher.Constraint("Horizontal", 1, 2, 4, 2))
sketch10.addConstraint(Sketcher.Constraint("Equal", 11, 0))
sketch10.addConstraint(Sketcher.Constraint("Equal", 7, 8))
sketch10.addConstraint(Sketcher.Constraint("DistanceX", 1, 1, 1, 2, 100.0))
sketch10.addConstraint(Sketcher.Constraint("DistanceX", 9, 1, 9, 2, 50.0))
sketch10.addConstraint(Sketcher.Constraint("DistanceX", 0, 2, -1, 1, 300.0))
sketch10.addConstraint(Sketcher.Constraint("DistanceX", 8, 2, -1, 1, 25.0))
sketch10.addConstraint(Sketcher.Constraint("DistanceY", -1, 1, 8, 2, 200.0))
sketch10.setExpression("Constraints[29]", "Params.sketch10_width")
sketch10.setExpression("Constraints[30]", "Params.sketch10_width2")
pad9 = body.newObject("PartDesign::Pad", "Pad008")
pad9.Profile = sketch10
pad9.setExpression("Length", "Params.pad9_length")
pad9.Reversed = True

doc.recompute()
